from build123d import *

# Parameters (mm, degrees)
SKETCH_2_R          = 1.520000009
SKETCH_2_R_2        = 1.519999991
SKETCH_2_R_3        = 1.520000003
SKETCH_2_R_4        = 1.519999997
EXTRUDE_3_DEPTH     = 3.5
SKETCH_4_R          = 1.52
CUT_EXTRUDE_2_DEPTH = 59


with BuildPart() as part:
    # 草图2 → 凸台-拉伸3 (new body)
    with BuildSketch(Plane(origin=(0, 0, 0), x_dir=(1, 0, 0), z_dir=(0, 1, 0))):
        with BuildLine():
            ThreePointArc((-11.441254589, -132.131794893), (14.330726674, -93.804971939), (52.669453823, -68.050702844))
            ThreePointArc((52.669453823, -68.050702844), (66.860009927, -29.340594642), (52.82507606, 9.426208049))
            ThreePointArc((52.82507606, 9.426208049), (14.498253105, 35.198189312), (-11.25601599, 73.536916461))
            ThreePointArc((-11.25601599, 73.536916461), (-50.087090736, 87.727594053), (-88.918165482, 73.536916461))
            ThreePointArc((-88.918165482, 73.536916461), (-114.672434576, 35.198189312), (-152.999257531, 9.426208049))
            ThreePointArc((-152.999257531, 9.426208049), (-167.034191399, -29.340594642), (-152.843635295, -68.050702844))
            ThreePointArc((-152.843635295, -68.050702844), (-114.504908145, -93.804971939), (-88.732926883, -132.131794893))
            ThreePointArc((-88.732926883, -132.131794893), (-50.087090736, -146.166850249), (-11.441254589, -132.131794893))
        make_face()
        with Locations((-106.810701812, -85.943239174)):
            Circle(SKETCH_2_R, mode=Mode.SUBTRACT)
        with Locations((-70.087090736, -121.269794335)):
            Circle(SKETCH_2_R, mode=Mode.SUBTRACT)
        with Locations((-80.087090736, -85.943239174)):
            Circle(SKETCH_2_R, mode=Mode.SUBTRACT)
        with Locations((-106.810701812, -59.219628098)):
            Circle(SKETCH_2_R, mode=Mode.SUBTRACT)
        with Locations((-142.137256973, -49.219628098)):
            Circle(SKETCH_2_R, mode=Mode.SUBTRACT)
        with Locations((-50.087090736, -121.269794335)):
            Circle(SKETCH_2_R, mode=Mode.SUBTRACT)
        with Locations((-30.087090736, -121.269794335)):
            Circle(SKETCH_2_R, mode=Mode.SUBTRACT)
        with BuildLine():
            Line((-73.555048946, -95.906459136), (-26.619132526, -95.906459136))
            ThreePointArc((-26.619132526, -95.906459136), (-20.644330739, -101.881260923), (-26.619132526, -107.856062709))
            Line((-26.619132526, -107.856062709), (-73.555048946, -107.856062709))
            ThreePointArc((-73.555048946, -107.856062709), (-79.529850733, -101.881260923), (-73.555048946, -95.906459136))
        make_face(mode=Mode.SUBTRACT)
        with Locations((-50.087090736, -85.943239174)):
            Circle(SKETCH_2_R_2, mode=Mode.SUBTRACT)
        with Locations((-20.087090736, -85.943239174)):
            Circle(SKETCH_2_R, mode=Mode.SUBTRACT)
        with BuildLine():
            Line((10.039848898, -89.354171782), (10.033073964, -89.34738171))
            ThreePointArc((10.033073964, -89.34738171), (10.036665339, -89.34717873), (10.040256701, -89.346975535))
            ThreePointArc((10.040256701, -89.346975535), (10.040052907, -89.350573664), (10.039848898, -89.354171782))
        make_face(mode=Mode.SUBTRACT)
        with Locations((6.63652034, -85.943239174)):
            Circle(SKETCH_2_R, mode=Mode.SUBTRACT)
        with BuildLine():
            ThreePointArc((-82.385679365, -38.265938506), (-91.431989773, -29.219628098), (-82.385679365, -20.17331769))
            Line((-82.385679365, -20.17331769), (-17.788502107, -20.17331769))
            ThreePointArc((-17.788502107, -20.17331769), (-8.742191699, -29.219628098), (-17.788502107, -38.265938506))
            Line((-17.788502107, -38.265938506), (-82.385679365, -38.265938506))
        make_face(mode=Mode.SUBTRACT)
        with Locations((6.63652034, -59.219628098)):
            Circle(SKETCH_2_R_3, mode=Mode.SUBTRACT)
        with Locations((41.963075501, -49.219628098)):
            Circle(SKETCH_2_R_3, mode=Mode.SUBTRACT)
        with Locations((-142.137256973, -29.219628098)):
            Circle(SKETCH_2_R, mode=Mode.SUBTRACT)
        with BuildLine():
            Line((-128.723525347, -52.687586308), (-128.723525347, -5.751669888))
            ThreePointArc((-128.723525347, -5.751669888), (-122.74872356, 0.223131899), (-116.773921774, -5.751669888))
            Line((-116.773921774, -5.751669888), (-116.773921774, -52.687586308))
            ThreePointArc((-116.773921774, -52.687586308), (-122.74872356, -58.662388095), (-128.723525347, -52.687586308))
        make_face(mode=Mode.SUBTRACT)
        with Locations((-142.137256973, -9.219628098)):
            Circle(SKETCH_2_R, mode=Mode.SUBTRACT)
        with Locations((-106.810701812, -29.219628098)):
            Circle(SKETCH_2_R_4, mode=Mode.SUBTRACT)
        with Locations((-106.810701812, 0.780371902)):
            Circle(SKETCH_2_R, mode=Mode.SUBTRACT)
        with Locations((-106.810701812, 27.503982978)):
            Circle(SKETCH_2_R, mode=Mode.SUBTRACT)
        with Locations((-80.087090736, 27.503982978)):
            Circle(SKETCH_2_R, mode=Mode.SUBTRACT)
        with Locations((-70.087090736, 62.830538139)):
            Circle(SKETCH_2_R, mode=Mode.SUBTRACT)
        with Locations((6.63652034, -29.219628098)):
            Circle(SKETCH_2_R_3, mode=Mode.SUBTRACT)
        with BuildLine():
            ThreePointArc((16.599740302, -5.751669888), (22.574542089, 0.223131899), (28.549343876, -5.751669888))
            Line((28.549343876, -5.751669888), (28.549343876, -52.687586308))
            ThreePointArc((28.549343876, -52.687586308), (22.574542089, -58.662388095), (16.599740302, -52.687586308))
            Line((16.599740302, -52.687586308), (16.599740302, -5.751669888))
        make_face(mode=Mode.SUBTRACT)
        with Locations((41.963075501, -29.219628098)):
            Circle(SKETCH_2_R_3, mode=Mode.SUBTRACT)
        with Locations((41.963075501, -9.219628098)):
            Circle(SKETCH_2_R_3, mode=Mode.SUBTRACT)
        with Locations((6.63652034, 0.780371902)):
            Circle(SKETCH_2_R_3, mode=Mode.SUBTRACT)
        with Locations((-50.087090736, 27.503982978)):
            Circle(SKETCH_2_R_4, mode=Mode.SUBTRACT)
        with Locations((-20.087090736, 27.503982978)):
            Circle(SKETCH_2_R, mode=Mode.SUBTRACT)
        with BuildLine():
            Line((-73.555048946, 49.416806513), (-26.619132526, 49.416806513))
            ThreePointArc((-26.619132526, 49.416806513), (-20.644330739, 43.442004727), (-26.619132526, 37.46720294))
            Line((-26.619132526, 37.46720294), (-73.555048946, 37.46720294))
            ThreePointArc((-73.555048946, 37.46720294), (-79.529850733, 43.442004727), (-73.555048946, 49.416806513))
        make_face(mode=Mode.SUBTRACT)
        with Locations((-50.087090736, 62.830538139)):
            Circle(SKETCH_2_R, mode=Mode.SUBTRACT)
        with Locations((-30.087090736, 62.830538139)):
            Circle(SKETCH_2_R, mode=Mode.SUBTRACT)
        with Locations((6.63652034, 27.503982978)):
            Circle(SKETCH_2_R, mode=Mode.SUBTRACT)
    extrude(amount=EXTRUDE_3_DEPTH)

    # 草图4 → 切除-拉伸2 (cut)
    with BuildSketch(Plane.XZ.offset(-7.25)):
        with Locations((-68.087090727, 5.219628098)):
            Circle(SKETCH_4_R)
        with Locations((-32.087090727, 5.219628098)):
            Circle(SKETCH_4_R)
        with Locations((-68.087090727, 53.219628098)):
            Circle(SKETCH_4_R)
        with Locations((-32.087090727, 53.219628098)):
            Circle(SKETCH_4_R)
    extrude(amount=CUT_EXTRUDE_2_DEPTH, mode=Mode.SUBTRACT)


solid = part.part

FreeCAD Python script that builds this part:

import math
import FreeCAD as App
import Part
import Sketcher
from FreeCAD import Vector
Q = App.Units.Quantity

doc = App.newDocument("Part")
body = doc.addObject("PartDesign::Body", "Body")

# Sketch on XZ plane
sketch1 = doc.addObject("Sketcher::SketchObject", "Sketch")
body.addObject(sketch1)
sketch1.AttachmentSupport = (doc.XZ_Plane, [""])
sketch1.MapMode = "FlatFace"
sketch1.addGeometry([
    Part.ArcOfCircle(Part.Circle(Vector(99.164, 178.677, 0), Vector(0, 0, 1), 120), math.radians(-157), math.radians(-113)),  # 0
    Part.ArcOfCircle(Part.Circle(Vector(6.637, 29.22, 0), Vector(0, 0, 1), 60.224), math.radians(-40), math.radians(40)),  # 1
    Part.ArcOfCircle(Part.Circle(Vector(99.371, -120.031, 0), Vector(0, 0, 1), 120), math.radians(113), math.radians(157)),  # 2
    Part.ArcOfCircle(Part.Circle(Vector(-50.087, -27.504, 0), Vector(0, 0, 1), 60.224), math.radians(-130), math.radians(-50)),  # 3
    Part.ArcOfCircle(Part.Circle(Vector(-199.545, -120.031, 0), Vector(0, 0, 1), 120), math.radians(23), math.radians(67)),  # 4
    Part.ArcOfCircle(Part.Circle(Vector(-106.811, 29.22, 0), Vector(0, 0, 1), 60.224), math.radians(140), math.radians(220)),  # 5
    Part.ArcOfCircle(Part.Circle(Vector(-199.338, 178.677, 0), Vector(0, 0, 1), 120), math.radians(-67), math.radians(-23)),  # 6
    Part.ArcOfCircle(Part.Circle(Vector(-50.087, 85.943, 0), Vector(0, 0, 1), 60.224), math.radians(50), math.radians(130)),  # 7
    Part.Circle(Vector(-106.811, 85.943, 0), Vector(0, 0, 1), 1.52),  # 8
    Part.Circle(Vector(-70.087, 121.27, 0), Vector(0, 0, 1), 1.52),  # 9
    Part.Circle(Vector(-80.087, 85.943, 0), Vector(0, 0, 1), 1.52),  # 10
    Part.Circle(Vector(-106.811, 59.22, 0), Vector(0, 0, 1), 1.52),  # 11
    Part.Circle(Vector(-142.137, 49.22, 0), Vector(0, 0, 1), 1.52),  # 12
    Part.Circle(Vector(-142.137, 29.22, 0), Vector(0, 0, 1), 1.52),  # 13
    Part.Circle(Vector(-106.811, 29.22, 0), Vector(0, 0, 1), 1.52),  # 14
    Part.Circle(Vector(-50.087, 121.27, 0), Vector(0, 0, 1), 1.52),  # 15
    Part.Circle(Vector(-30.087, 121.27, 0), Vector(0, 0, 1), 1.52),  # 16
    Part.ArcOfCircle(Part.Circle(Vector(-73.555, 101.881, 0), Vector(0, 0, 1), 5.975), math.radians(90), math.radians(270)),  # 17
    Part.LineSegment(Vector(-73.555, 95.906, 0), Vector(-26.619, 95.906, 0)),  # 18
    Part.ArcOfCircle(Part.Circle(Vector(-26.619, 101.881, 0), Vector(0, 0, 1), 5.975), math.radians(-90), math.radians(90)),  # 19
    Part.LineSegment(Vector(-26.619, 107.856, 0), Vector(-73.555, 107.856, 0)),  # 20
    Part.Circle(Vector(-50.087, 85.943, 0), Vector(0, 0, 1), 1.52),  # 21
    Part.Circle(Vector(-20.087, 85.943, 0), Vector(0, 0, 1), 1.52),  # 22
    Part.ArcOfCircle(Part.Circle(Vector(-50.195, 85.937, 0), Vector(0, 0, 1), 60.332), math.radians(3.24), math.radians(3.25)),  # 23
    Part.LineSegment(Vector(10.04, 89.354, 0), Vector(10.033, 89.347, 0)),  # 24
    Part.ArcOfCircle(Part.Circle(Vector(6.645, 29.37, 0), Vector(0, 0, 1), 60.073), math.radians(86.76), math.radians(86.77)),  # 25
    Part.Circle(Vector(6.637, 85.943, 0), Vector(0, 0, 1), 1.52),  # 26
    Part.LineSegment(Vector(-17.789, 38.266, 0), Vector(-82.386, 38.266, 0)),  # 27
    Part.ArcOfCircle(Part.Circle(Vector(-82.386, 29.22, 0), Vector(0, 0, 1), 9.046), math.radians(90), math.radians(270)),  # 28
    Part.LineSegment(Vector(-82.386, 20.173, 0), Vector(-17.789, 20.173, 0)),  # 29
    Part.ArcOfCircle(Part.Circle(Vector(-17.789, 29.22, 0), Vector(0, 0, 1), 9.046), math.radians(-90), math.radians(90)),  # 30
    Part.Circle(Vector(6.637, 59.22, 0), Vector(0, 0, 1), 1.52),  # 31
    Part.Circle(Vector(6.637, 29.22, 0), Vector(0, 0, 1), 1.52),  # 32
    Part.Circle(Vector(41.963, 49.22, 0), Vector(0, 0, 1), 1.52),  # 33
    Part.LineSegment(Vector(16.6, 52.688, 0), Vector(16.6, 5.752, 0)),  # 34
    Part.ArcOfCircle(Part.Circle(Vector(22.575, 5.752, 0), Vector(0, 0, 1), 5.975), math.radians(180), math.radians(360)),  # 35
    Part.LineSegment(Vector(28.549, 5.752, 0), Vector(28.549, 52.688, 0)),  # 36
    Part.ArcOfCircle(Part.Circle(Vector(22.575, 52.688, 0), Vector(0, 0, 1), 5.975), math.radians(0), math.radians(180)),  # 37
    Part.Circle(Vector(41.963, 29.22, 0), Vector(0, 0, 1), 1.52),  # 38
    Part.ArcOfCircle(Part.Circle(Vector(-122.749, 52.688, 0), Vector(0, 0, 1), 5.975), math.radians(0), math.radians(180)),  # 39
    Part.LineSegment(Vector(-128.724, 52.688, 0), Vector(-128.724, 5.752, 0)),  # 40
    Part.ArcOfCircle(Part.Circle(Vector(-122.749, 5.752, 0), Vector(0, 0, 1), 5.975), math.radians(180), math.radians(360)),  # 41
    Part.LineSegment(Vector(-116.774, 5.752, 0), Vector(-116.774, 52.688, 0)),  # 42
    Part.Circle(Vector(-142.137, 9.22, 0), Vector(0, 0, 1), 1.52),  # 43
    Part.Circle(Vector(-106.811, -0.78, 0), Vector(0, 0, 1), 1.52),  # 44
    Part.Circle(Vector(-106.811, -27.504, 0), Vector(0, 0, 1), 1.52),  # 45
    Part.Circle(Vector(-80.087, -27.504, 0), Vector(0, 0, 1), 1.52),  # 46
    Part.Circle(Vector(-70.087, -62.831, 0), Vector(0, 0, 1), 1.52),  # 47
    Part.Circle(Vector(41.963, 9.22, 0), Vector(0, 0, 1), 1.52),  # 48
    Part.Circle(Vector(6.637, -0.78, 0), Vector(0, 0, 1), 1.52),  # 49
    Part.Circle(Vector(-50.087, -27.504, 0), Vector(0, 0, 1), 1.52),  # 50
    Part.Circle(Vector(-20.087, -27.504, 0), Vector(0, 0, 1), 1.52),  # 51
    Part.ArcOfCircle(Part.Circle(Vector(-73.555, -43.442, 0), Vector(0, 0, 1), 5.975), math.radians(90), math.radians(270)),  # 52
    Part.LineSegment(Vector(-73.555, -49.417, 0), Vector(-26.619, -49.417, 0)),  # 53
    Part.ArcOfCircle(Part.Circle(Vector(-26.619, -43.442, 0), Vector(0, 0, 1), 5.975), math.radians(-90), math.radians(90)),  # 54
    Part.LineSegment(Vector(-26.619, -37.467, 0), Vector(-73.555, -37.467, 0)),  # 55
    Part.Circle(Vector(-50.087, -62.831, 0), Vector(0, 0, 1), 1.52),  # 56
    Part.Circle(Vector(-30.087, -62.831, 0), Vector(0, 0, 1), 1.52),  # 57
    Part.Circle(Vector(6.637, -27.504, 0), Vector(0, 0, 1), 1.52),  # 58
], False)
sketch1.addConstraint([
    Sketcher.Constraint("Coincident", 0, 2, 1, 2),
    Sketcher.Constraint("Coincident", 1, 1, 2, 1),
    Sketcher.Constraint("Coincident", 2, 2, 3, 2),
    Sketcher.Constraint("Coincident", 3, 1, 4, 1),
    Sketcher.Constraint("Coincident", 4, 2, 5, 2),
    Sketcher.Constraint("Coincident", 5, 1, 6, 1),
    Sketcher.Constraint("Coincident", 6, 2, 7, 2),
    Sketcher.Constraint("Coincident", 7, 1, 0, 1),
    Sketcher.Constraint("Tangent", 17, 2, 18, 1),
    Sketcher.Constraint("Tangent", 18, 2, 19, 1),
    Sketcher.Constraint("Tangent", 19, 2, 20, 1),
    Sketcher.Constraint("Tangent", 20, 2, 17, 1),
    Sketcher.Constraint("Coincident", 23, 2, 24, 1),
    Sketcher.Constraint("Coincident", 24, 2, 25, 2),
    Sketcher.Constraint("Coincident", 25, 1, 23, 1),
    Sketcher.Constraint("Tangent", 27, 2, 28, 1),
    Sketcher.Constraint("Tangent", 28, 2, 29, 1),
    Sketcher.Constraint("Tangent", 29, 2, 30, 1),
    Sketcher.Constraint("Tangent", 30, 2, 27, 1),
    Sketcher.Constraint("Tangent", 34, 2, 35, 1),
    Sketcher.Constraint("Tangent", 35, 2, 36, 1),
    Sketcher.Constraint("Tangent", 36, 2, 37, 1),
    Sketcher.Constraint("Tangent", 37, 2, 34, 1),
    Sketcher.Constraint("Tangent", 39, 2, 40, 1),
    Sketcher.Constraint("Tangent", 40, 2, 41, 1),
    Sketcher.Constraint("Tangent", 41, 2, 42, 1),
    Sketcher.Constraint("Tangent", 42, 2, 39, 1),
    Sketcher.Constraint("Tangent", 52, 2, 53, 1),
    Sketcher.Constraint("Tangent", 53, 2, 54, 1),
    Sketcher.Constraint("Tangent", 54, 2, 55, 1),
    Sketcher.Constraint("Tangent", 55, 2, 52, 1),
    Sketcher.Constraint("Horizontal", 18),
    Sketcher.Constraint("Horizontal", 20),
    Sketcher.Constraint("Horizontal", 27),
    Sketcher.Constraint("Horizontal", 29),
    Sketcher.Constraint("Vertical", 34),
    Sketcher.Constraint("Vertical", 36),
    Sketcher.Constraint("Vertical", 40),
    Sketcher.Constraint("Vertical", 42),
    Sketcher.Constraint("Horizontal", 53),
    Sketcher.Constraint("Horizontal", 55),
    Sketcher.Constraint("Coincident", 14, 3, 5, 3),
    Sketcher.Constraint("Coincident", 21, 3, 7, 3),
    Sketcher.Constraint("Coincident", 32, 3, 1, 3),
    Sketcher.Constraint("Coincident", 50, 3, 3, 3),
    Sketcher.Constraint("Equal", 0, 2),
    Sketcher.Constraint("Equal", 1, 3),
    Sketcher.Constraint("Equal", 2, 4),
    Sketcher.Constraint("Equal", 3, 5),
    Sketcher.Constraint("Equal", 4, 6),
    Sketcher.Constraint("Equal", 5, 7),
    Sketcher.Constraint("Equal", 8, 9),
    Sketcher.Constraint("Equal", 9, 10),
    Sketcher.Constraint("Equal", 10, 11),
    Sketcher.Constraint("Equal", 11, 12),
    Sketcher.Constraint("Equal", 12, 13),
    Sketcher.Constraint("Equal", 13, 14),
    Sketcher.Constraint("Equal", 14, 15),
    Sketcher.Constraint("Equal", 15, 16),
    Sketcher.Constraint("Equal", 16, 21),
    Sketcher.Constraint("Equal", 21, 22),
    Sketcher.Constraint("Equal", 22, 26),
    Sketcher.Constraint("Equal", 26, 31),
    Sketcher.Constraint("Equal", 31, 32),
    Sketcher.Constraint("Equal", 32, 33),
    Sketcher.Constraint("Equal", 19, 35),
    Sketcher.Constraint("Equal", 33, 38),
    Sketcher.Constraint("Equal", 37, 39),
    Sketcher.Constraint("Equal", 38, 43),
    Sketcher.Constraint("Equal", 43, 44),
    Sketcher.Constraint("Equal", 44, 45),
    Sketcher.Constraint("Equal", 45, 46),
    Sketcher.Constraint("Equal", 46, 47),
    Sketcher.Constraint("Equal", 47, 48),
    Sketcher.Constraint("Equal", 48, 49),
    Sketcher.Constraint("Equal", 49, 50),
    Sketcher.Constraint("Equal", 50, 51),
    Sketcher.Constraint("Equal", 41, 52),
    Sketcher.Constraint("Equal", 51, 56),
    Sketcher.Constraint("Equal", 56, 57),
    Sketcher.Constraint("Equal", 57, 58),
    Sketcher.Constraint("Horizontal", 2, 3, 4, 3),
    Sketcher.Constraint("Horizontal", 1, 3, 5, 3),
    Sketcher.Constraint("Horizontal", 0, 3, 6, 3),
    Sketcher.Constraint("Horizontal", 7, 3, 8, 3),
    Sketcher.Constraint("Horizontal", 8, 3, 10, 3),
    Sketcher.Constraint("Horizontal", 5, 3, 13, 3),
    Sketcher.Constraint("Horizontal", 9, 3, 15, 3),
    Sketcher.Constraint("Horizontal", 15, 3, 16, 3),
    Sketcher.Constraint("Horizontal", 21, 3, 22, 3),
    Sketcher.Constraint("Horizontal", 22, 3, 26, 3),
    Sketcher.Constraint("Horizontal", 14, 3, 28, 3),
    Sketcher.Constraint("Horizontal", 11, 3, 31, 3),
    Sketcher.Constraint("Horizontal", 12, 3, 33, 3),
    Sketcher.Constraint("Horizontal", 32, 3, 38, 3),
    Sketcher.Constraint("Horizontal", 37, 3, 39, 3),
    Sketcher.Constraint("Horizontal", 35, 3, 41, 3),
    Sketcher.Constraint("Horizontal", 3, 3, 45, 3),
    Sketcher.Constraint("Horizontal", 45, 3, 46, 3),
    Sketcher.Constraint("Horizontal", 43, 3, 48, 3),
    Sketcher.Constraint("Horizontal", 44, 3, 49, 3),
    Sketcher.Constraint("Horizontal", 50, 3, 51, 3),
    Sketcher.Constraint("Horizontal", 47, 3, 56, 3),
    Sketcher.Constraint("Horizontal", 56, 3, 57, 3),
    Sketcher.Constraint("Horizontal", 51, 3, 58, 3),
    Sketcher.Constraint("Horizontal", 2, 2, 3, 1),
    Sketcher.Constraint("Horizontal", 1, 1, 4, 2),
    Sketcher.Constraint("Horizontal", 0, 2, 5, 1),
    Sketcher.Constraint("Horizontal", 6, 2, 7, 1),
    Sketcher.Constraint("Vertical", 5, 3, 8, 3),
    Sketcher.Constraint("Vertical", 8, 3, 11, 3),
    Sketcher.Constraint("Vertical", 12, 3, 13, 3),
    Sketcher.Constraint("Vertical", 7, 3, 15, 3),
    Sketcher.Constraint("Vertical", 1, 3, 26, 3),
    Sketcher.Constraint("Vertical", 26, 3, 31, 3),
    Sketcher.Constraint("Vertical", 33, 3, 38, 3),
    Sketcher.Constraint("Vertical", 13, 3, 43, 3),
    Sketcher.Constraint("Vertical", 14, 3, 44, 3),
    Sketcher.Constraint("Vertical", 44, 3, 45, 3),
    Sketcher.Constraint("Vertical", 10, 3, 46, 3),
    Sketcher.Constraint("Vertical", 9, 3, 47, 3),
    Sketcher.Constraint("Vertical", 38, 3, 48, 3),
    Sketcher.Constraint("Vertical", 32, 3, 49, 3),
    Sketcher.Constraint("Vertical", 22, 3, 51, 3),
    Sketcher.Constraint("Vertical", 17, 3, 52, 3),
    Sketcher.Constraint("Vertical", 19, 3, 54, 3),
    Sketcher.Constraint("Vertical", 50, 3, 56, 3),
    Sketcher.Constraint("Vertical", 16, 3, 57, 3),
    Sketcher.Constraint("Vertical", 49, 3, 58, 3),
    Sketcher.Constraint("Equal", 55, 34),
    Sketcher.Constraint("Radius", 0, Q("120 mm")),
    Sketcher.Constraint("Diameter", 8, Q("3.04 mm")),
    Sketcher.Constraint("Radius", 17, Q("5.974802 mm")),
    Sketcher.Constraint("Radius", 1, Q("60.223611 mm")),
    Sketcher.Constraint("Radius", 23, Q("60.33162 mm")),
    Sketcher.Constraint("Radius", 25, Q("60.072939 mm")),
    Sketcher.Constraint("Radius", 28, Q("9.04631 mm")),
    Sketcher.Constraint("DistanceX", 5, 3, -1, 1, Q("106.810702 mm")),
    Sketcher.Constraint("Distance", 24, Q("0.009592 mm")),
    Sketcher.Constraint("DistanceX", 18, 1, 18, 2, Q("46.935916 mm")),
    Sketcher.Constraint("DistanceX", 27, 2, 27, 1, Q("64.597177 mm")),
    Sketcher.Constraint("DistanceX", -1, 1, 1, 3, Q("6.63652 mm")),
    Sketcher.Constraint("DistanceY", -1, 1, 1, 3, Q("29.219628 mm")),
    Sketcher.Constraint("DistanceX", -1, 1, 2, 3, Q("99.370668 mm")),
    Sketcher.Constraint("DistanceY", -1, 1, 7, 3, Q("85.943239 mm")),
    Sketcher.Constraint("DistanceX", 9, 3, -1, 1, Q("70.087091 mm")),
    Sketcher.Constraint("DistanceX", 10, 3, -1, 1, Q("80.087091 mm")),
    Sketcher.Constraint("DistanceY", -1, 1, 11, 3, Q("59.219628 mm")),
    Sketcher.Constraint("DistanceY", -1, 1, 12, 3, Q("49.219628 mm")),
    Sketcher.Constraint("DistanceX", 16, 3, -1, 1, Q("30.087091 mm")),
    Sketcher.Constraint("DistanceX", 17, 3, -1, 1, Q("73.555049 mm")),
    Sketcher.Constraint("DistanceY", -1, 1, 17, 3, Q("101.881261 mm")),
    Sketcher.Constraint("DistanceX", 22, 3, -1, 1, Q("20.087091 mm")),
    Sketcher.Constraint("DistanceY", -1, 1, 25, 3, Q("29.370059 mm")),
    Sketcher.Constraint("DistanceX", 28, 3, -1, 1, Q("82.385679 mm")),
    Sketcher.Constraint("DistanceY", -1, 1, 35, 3, Q("5.75167 mm")),
    Sketcher.Constraint("DistanceY", -1, 1, 43, 3, Q("9.219628 mm")),
    Sketcher.Constraint("DistanceY", 44, 3, -1, 1, Q("0.780372 mm")),
    Sketcher.Constraint("DistanceY", 47, 3, -1, 1, Q("62.830538 mm")),
    Sketcher.Constraint("DistanceY", 1, 1, -1, 1, Q("9.426208 mm")),
    Sketcher.Constraint("DistanceX", -1, 1, 23, 2, Q("10.039849 mm")),
    Sketcher.Constraint("DistanceY", -1, 1, 23, 2, Q("89.354172 mm")),
    Sketcher.Constraint("DistanceY", -1, 1, 24, 2, Q("89.347382 mm")),
    Sketcher.Constraint("DistanceX", -1, 1, 34, 2, Q("16.59974 mm")),
    Sketcher.Constraint("DistanceX", 41, 2, -1, 1, Q("116.773922 mm")),
    Sketcher.Constraint("DistanceX", -1, 1, 0, 3, Q("99.163934 mm")),
    Sketcher.Constraint("DistanceY", -1, 1, 0, 3, Q("178.677387 mm")),
    Sketcher.Constraint("DistanceY", 3, 3, -1, 1, Q("27.503983 mm")),
    Sketcher.Constraint("DistanceY", -1, 1, 9, 3, Q("121.269794 mm")),
    Sketcher.Constraint("DistanceX", 12, 3, -1, 1, Q("142.137257 mm")),
    Sketcher.Constraint("DistanceX", 23, 3, -1, 1, Q("50.194927 mm")),
    Sketcher.Constraint("DistanceX", -1, 1, 33, 3, Q("41.963076 mm")),
    Sketcher.Constraint("DistanceY", 52, 3, -1, 1, Q("43.442005 mm")),
])
pad1 = doc.addObject("PartDesign::Pad", "Pad")
body.addObject(pad1)
pad1.Profile = sketch1
pad1.Length = 3.5
pad1.Reversed = True

# Sketch on XZ plane
sketch2 = doc.addObject("Sketcher::SketchObject", "Sketch001")
body.addObject(sketch2)
sketch2.AttachmentSupport = (doc.XZ_Plane, [""])
sketch2.MapMode = "FlatFace"
sketch2.AttachmentOffset = App.Placement(Vector(0, 0, -7.25), App.Rotation())
sketch2.addGeometry([
    Part.Circle(Vector(-68.1, 5.2, 0), Vector(0, 0, 1), 1.5),
    Part.Circle(Vector(-32.1, 5.2, 0), Vector(0, 0, 1), 1.5),
    Part.Circle(Vector(-68.1, 53.2, 0), Vector(0, 0, 1), 1.5),
    Part.Circle(Vector(-32.1, 53.2, 0), Vector(0, 0, 1), 1.5),
], False)
sketch2.addConstraint([
    Sketcher.Constraint("Equal", 0, 1),
    Sketcher.Constraint("Equal", 1, 2),
    Sketcher.Constraint("Equal", 2, 3),
    Sketcher.Constraint("Horizontal", 0, 3, 1, 3),
    Sketcher.Constraint("Horizontal", 2, 3, 3, 3),
    Sketcher.Constraint("Vertical", 0, 3, 2, 3),
    Sketcher.Constraint("Vertical", 1, 3, 3, 3),
    Sketcher.Constraint("Diameter", 0, Q("3.04 mm")),
    Sketcher.Constraint("DistanceX", 0, 3, 1, 3, Q("36 mm")),
    Sketcher.Constraint("DistanceY", 0, 3, 2, 3, Q("48 mm")),
    Sketcher.Constraint("DistanceX", 0, 3, -1, 1, Q("68.087091 mm")),
    Sketcher.Constraint("DistanceY", -1, 1, 0, 3, Q("5.219628 mm")),
])
pocket1 = doc.addObject("PartDesign::Pocket", "Pocket")
body.addObject(pocket1)
pocket1.Profile = sketch2
pocket1.Length = 59
pocket1.Reversed = True

doc.recompute()
